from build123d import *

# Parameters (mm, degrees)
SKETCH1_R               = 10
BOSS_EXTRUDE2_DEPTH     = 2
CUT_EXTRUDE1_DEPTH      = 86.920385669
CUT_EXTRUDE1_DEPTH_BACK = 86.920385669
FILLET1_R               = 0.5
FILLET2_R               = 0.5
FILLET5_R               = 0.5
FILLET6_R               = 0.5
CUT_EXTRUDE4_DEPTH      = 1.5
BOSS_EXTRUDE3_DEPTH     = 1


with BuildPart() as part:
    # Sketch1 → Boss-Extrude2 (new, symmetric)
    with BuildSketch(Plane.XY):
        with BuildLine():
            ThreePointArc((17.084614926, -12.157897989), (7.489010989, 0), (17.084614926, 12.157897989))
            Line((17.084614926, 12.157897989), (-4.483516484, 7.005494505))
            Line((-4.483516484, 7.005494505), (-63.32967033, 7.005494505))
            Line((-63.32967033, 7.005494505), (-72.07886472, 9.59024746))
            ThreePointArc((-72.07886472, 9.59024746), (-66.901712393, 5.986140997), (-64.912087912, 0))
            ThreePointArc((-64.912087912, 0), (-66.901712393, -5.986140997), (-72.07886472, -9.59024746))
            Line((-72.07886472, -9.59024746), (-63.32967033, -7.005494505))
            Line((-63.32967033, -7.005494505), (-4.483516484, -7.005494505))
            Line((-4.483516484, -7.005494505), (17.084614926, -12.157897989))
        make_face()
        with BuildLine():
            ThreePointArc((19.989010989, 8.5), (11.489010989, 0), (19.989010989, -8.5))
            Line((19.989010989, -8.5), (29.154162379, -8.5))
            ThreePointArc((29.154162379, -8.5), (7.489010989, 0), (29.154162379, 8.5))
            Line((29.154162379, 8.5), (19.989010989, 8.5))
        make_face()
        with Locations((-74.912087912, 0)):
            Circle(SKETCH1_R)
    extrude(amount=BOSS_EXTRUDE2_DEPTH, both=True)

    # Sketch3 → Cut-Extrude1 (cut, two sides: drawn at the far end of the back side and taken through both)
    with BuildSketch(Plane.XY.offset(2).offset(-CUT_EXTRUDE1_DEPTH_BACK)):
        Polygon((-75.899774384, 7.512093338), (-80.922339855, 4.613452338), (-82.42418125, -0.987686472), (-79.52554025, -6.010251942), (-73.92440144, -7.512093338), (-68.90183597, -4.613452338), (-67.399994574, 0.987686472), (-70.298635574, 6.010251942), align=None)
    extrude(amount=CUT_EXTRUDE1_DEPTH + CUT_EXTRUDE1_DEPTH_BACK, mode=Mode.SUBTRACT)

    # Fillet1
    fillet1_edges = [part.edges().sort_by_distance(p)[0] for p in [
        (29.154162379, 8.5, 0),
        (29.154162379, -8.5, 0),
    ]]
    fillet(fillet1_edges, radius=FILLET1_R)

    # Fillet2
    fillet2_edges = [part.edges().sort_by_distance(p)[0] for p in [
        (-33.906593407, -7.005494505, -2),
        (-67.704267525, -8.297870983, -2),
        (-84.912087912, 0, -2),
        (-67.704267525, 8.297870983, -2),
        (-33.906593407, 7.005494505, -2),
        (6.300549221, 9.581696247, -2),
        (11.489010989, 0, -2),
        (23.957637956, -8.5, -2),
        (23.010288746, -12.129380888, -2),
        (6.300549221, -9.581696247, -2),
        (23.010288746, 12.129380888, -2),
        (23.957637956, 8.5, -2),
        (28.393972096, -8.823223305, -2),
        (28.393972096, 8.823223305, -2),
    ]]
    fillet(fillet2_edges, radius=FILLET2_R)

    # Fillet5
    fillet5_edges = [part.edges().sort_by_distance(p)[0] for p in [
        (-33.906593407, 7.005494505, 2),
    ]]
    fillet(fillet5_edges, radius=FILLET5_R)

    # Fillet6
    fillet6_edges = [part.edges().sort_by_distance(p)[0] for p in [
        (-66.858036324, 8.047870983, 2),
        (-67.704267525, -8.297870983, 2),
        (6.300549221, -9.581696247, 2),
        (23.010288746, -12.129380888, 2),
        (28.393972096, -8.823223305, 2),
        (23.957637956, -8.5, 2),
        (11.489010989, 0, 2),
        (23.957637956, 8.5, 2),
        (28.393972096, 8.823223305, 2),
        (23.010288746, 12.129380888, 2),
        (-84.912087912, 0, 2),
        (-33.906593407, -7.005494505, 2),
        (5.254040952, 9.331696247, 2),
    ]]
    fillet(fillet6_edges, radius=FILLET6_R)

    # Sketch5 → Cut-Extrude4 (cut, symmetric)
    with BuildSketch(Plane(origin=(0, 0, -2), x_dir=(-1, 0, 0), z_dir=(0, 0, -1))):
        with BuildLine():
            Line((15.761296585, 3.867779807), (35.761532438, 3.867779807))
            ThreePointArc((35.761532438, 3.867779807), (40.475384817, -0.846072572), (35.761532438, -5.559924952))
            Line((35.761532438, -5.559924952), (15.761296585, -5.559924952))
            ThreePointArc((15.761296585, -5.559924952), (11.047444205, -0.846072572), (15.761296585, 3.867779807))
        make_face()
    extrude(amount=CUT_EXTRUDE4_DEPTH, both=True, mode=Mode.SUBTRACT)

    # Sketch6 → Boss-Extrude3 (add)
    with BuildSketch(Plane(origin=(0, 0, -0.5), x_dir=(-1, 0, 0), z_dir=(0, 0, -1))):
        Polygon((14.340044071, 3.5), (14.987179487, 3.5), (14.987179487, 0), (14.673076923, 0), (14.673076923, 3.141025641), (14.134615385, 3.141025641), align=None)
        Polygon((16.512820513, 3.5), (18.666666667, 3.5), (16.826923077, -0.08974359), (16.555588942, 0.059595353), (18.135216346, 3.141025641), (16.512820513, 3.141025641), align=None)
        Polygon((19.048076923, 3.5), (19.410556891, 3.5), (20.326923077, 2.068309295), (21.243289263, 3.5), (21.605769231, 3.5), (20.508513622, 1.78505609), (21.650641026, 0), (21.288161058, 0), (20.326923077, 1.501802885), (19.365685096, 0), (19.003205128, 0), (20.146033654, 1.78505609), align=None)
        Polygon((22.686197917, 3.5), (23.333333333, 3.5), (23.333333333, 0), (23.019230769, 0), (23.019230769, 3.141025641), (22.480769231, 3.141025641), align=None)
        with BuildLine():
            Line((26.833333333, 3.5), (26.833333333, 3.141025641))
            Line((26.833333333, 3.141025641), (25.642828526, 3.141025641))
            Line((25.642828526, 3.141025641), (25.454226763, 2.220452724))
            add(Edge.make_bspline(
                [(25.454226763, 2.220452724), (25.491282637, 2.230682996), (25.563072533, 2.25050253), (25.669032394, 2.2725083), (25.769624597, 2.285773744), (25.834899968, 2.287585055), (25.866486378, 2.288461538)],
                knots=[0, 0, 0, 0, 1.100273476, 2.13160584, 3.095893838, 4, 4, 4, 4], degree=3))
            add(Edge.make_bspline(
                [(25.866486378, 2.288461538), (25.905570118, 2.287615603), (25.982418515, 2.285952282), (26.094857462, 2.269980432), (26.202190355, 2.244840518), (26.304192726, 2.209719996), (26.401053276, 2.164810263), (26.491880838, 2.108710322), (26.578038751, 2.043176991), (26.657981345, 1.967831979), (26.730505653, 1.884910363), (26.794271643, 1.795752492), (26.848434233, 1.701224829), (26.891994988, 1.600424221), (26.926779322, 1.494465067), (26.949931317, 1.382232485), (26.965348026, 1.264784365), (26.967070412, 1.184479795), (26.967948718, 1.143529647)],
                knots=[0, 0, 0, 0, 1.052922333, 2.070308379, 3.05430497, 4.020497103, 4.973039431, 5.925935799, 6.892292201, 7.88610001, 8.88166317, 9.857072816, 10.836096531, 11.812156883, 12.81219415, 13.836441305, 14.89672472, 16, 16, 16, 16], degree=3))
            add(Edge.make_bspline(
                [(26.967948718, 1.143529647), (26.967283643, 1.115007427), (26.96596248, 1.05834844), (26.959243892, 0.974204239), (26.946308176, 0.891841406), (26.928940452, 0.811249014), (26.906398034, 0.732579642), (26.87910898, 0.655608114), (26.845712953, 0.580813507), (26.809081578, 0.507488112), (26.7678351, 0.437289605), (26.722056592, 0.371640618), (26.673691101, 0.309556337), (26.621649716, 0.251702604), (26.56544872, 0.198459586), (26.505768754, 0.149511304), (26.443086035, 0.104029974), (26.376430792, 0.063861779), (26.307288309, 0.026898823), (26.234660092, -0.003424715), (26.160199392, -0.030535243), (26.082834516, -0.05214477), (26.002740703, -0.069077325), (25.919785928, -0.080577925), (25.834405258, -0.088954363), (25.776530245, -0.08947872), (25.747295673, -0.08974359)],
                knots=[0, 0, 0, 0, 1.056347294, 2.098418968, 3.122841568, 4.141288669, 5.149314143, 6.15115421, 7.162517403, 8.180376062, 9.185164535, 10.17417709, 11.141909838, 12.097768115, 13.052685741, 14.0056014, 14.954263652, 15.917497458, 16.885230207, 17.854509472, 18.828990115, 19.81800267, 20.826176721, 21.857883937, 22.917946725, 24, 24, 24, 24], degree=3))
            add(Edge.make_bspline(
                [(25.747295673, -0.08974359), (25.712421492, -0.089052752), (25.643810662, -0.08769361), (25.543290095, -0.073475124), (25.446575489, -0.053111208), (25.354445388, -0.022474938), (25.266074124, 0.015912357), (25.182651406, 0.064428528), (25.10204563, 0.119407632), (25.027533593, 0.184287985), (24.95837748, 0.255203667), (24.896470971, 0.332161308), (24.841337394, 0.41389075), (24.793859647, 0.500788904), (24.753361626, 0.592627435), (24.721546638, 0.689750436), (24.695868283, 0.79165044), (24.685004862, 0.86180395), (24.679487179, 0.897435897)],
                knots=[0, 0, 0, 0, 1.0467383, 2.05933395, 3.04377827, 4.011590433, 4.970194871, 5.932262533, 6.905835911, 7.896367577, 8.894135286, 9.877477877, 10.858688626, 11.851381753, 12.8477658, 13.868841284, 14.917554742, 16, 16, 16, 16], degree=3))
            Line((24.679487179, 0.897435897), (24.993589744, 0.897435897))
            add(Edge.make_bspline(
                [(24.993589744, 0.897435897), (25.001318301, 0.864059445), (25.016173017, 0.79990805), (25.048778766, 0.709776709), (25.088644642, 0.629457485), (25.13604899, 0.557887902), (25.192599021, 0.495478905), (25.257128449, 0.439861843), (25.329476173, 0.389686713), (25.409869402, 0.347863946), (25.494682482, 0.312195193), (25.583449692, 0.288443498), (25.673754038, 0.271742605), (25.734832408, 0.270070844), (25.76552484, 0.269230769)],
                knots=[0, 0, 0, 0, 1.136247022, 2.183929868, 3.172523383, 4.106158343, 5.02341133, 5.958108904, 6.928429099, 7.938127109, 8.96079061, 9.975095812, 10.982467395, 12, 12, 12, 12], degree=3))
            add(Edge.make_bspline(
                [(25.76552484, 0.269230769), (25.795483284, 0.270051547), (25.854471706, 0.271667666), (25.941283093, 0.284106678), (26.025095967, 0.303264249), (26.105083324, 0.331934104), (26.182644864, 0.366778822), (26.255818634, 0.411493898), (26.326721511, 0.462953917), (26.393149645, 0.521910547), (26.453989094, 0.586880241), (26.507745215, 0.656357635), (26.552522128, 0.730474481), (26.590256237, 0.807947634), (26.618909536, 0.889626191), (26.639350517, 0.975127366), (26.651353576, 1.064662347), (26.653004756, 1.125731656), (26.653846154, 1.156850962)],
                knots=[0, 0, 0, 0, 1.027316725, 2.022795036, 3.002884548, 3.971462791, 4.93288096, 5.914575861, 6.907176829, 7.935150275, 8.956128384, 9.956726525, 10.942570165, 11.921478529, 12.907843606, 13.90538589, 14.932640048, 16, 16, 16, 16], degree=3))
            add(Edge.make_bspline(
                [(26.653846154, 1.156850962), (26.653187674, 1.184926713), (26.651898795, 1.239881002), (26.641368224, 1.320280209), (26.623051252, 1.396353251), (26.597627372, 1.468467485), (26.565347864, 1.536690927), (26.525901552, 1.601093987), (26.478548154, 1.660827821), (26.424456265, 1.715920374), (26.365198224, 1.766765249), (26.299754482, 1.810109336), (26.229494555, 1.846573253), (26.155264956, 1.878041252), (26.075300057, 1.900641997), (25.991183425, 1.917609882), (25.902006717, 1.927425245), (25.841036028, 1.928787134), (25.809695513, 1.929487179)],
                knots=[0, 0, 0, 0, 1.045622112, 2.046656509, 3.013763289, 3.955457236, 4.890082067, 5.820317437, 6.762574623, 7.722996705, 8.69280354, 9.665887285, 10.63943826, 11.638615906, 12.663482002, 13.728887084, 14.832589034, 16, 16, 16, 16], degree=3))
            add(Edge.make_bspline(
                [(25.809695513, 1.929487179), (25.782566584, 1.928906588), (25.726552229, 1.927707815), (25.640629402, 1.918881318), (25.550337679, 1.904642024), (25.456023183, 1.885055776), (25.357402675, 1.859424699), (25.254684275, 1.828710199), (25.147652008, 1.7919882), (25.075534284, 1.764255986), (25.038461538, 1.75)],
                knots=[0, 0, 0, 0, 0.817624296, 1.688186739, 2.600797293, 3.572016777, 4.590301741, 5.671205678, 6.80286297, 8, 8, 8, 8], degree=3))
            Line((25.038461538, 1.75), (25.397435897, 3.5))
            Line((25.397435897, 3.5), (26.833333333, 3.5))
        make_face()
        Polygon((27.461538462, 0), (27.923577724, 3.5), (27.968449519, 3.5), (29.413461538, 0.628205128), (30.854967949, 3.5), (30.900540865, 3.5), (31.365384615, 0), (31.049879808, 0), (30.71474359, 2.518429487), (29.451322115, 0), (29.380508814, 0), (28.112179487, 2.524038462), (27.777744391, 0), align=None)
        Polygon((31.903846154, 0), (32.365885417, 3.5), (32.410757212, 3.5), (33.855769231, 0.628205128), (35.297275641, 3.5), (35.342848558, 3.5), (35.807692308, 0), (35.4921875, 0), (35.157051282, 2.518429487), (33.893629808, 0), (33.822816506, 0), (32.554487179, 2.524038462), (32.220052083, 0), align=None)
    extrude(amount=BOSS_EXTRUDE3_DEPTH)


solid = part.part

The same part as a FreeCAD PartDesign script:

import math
import FreeCAD as App
import Part
import Sketcher

V = App.Vector


def edges_at(feature, points):
    """Names of the edges that pass closest to the given points."""
    edges = feature.Shape.Edges
    near = lambda p: min(range(len(edges)), key=lambda i: edges[i].distToShape(Part.Vertex(*p))[0])
    return sorted({f"Edge{near(p) + 1}" for p in points})


def add_polygon(sketch, points):
    """Adds a closed chain of lines whose ends are joined by coincident constraints."""
    first, n = sketch.GeometryCount, len(points)
    for a, b in zip(points, points[1:] + points[:1]):
        sketch.addGeometry(Part.LineSegment(App.Vector(*a, 0), App.Vector(*b, 0)), False)
    for i in range(n):
        sketch.addConstraint(Sketcher.Constraint("Coincident", first + i, 2, first + (i + 1) % n, 1))

doc = App.newDocument("Part")
params = doc.addObject("Spreadsheet::Sheet", "Params")
for row, (alias, value) in enumerate([
    ("sketch1_radius", "10 mm"),
    ("sketch1_radius2", "12.5 mm"),
    ("sketch1_radius3", "8.5 mm"),
    ("pad1_length", "4 mm"),
    ("fillet_radius", "0.5 mm"),
    ("fillet2_radius", "0.5 mm"),
    ("fillet3_radius", "0.5 mm"),
    ("fillet4_radius", "0.5 mm"),
    ("pocket2_length", "3 mm"),
    ("sketch4_height", "3.5 mm"),
    ("sketch4_height2", "3.5 mm"),
    ("pad2_length", "1 mm"),
], start=1):
    params.set(f"A{row}", alias)
    params.set(f"B{row}", "=" + value)
    params.setAlias(f"B{row}", alias)

body = doc.addObject("PartDesign::Body", "Body")

sketch1 = body.newObject("Sketcher::SketchObject", "Sketch")
sketch1.AttachmentSupport = (doc.getObject("XY_Plane"), [""])
sketch1.MapMode = "FlatFace"
sketch1.addGeometry([
    Part.LineSegment(V(17, 12, 0), V(-4, 7, 0)),
    Part.LineSegment(V(-4, 7, 0), V(-63, 7, 0)),
    Part.LineSegment(V(-63, 7, 0), V(-72, 10, 0)),
    Part.ArcOfCircle(Part.Circle(V(-75, 0, 0), V(0, 0, 1), 10), math.radians(74), math.radians(286)),
    Part.LineSegment(V(-72, -10, 0), V(-63, -7, 0)),
    Part.LineSegment(V(-63, -7, 0), V(-4, -7, 0)),
    Part.LineSegment(V(-4, -7, 0), V(17, -12, 0)),
    Part.ArcOfCircle(Part.Circle(V(20, 0, 0), V(0, 0, 1), 12), math.radians(-103), math.radians(-43)),
    Part.LineSegment(V(29, -8, 0), V(20, -8, 0)),
    Part.ArcOfCircle(Part.Circle(V(20, 0, 0), V(0, 0, 1), 8), math.radians(90), math.radians(270)),
    Part.LineSegment(V(20, 8, 0), V(29, 8, 0)),
    Part.ArcOfCircle(Part.Circle(V(20, 0, 0), V(0, 0, 1), 12), math.radians(43), math.radians(103)),
], False)
sketch1.addConstraint([
    Sketcher.Constraint("Coincident", 0, 2, 1, 1),
    Sketcher.Constraint("Coincident", 1, 2, 2, 1),
    Sketcher.Constraint("Tangent", 2, 2, 3, 1),
    Sketcher.Constraint("Tangent", 3, 2, 4, 1),
    Sketcher.Constraint("Coincident", 4, 2, 5, 1),
    Sketcher.Constraint("Coincident", 5, 2, 6, 1),
    Sketcher.Constraint("Tangent", 6, 2, 7, 1),
    Sketcher.Constraint("Coincident", 7, 2, 8, 1),
    Sketcher.Constraint("Tangent", 8, 2, 9, 2),
    Sketcher.Constraint("Tangent", 9, 1, 10, 1),
    Sketcher.Constraint("Coincident", 10, 2, 11, 1),
    Sketcher.Constraint("Tangent", 11, 2, 0, 1),
    Sketcher.Constraint("Horizontal", 1),
    Sketcher.Constraint("Horizontal", 5),
    Sketcher.Constraint("Horizontal", 8),
    Sketcher.Constraint("Horizontal", 10),
    Sketcher.Constraint("Coincident", 9, 3, 7, 3),
    Sketcher.Constraint("Coincident", 11, 3, 7, 3),
    Sketcher.Constraint("Equal", 7, 11),
    Sketcher.Constraint("Symmetric", 2, 2, 3, 2, -1),
    Sketcher.Constraint("Symmetric", 0, 2, 5, 2, -1),
    Sketcher.Constraint("PointOnObject", 7, 3, -1),
    Sketcher.Constraint("Radius", 3, 10.0),
    Sketcher.Constraint("Radius", 7, 12.5),
    Sketcher.Constraint("Radius", 9, 8.5),
    Sketcher.Constraint("DistanceX", 3, 3, 7, 3, 94.901099),
    Sketcher.Constraint("Distance", 0, 22.175021),
    Sketcher.Constraint("DistanceX", 1, 2, 1, 1, 58.846154),
    Sketcher.Constraint("DistanceX", -1, 1, 7, 3, 19.989011),
    Sketcher.Constraint("DistanceX", 1, 2, -1, 1, 63.32967),
])
sketch1.setExpression("Constraints[22]", "Params.sketch1_radius")
sketch1.setExpression("Constraints[23]", "Params.sketch1_radius2")
sketch1.setExpression("Constraints[24]", "Params.sketch1_radius3")
pad1 = body.newObject("PartDesign::Pad", "Pad")
pad1.Profile = sketch1
pad1.setExpression("Length", "Params.pad1_length")
pad1.Midplane = True

sketch2 = body.newObject("Sketcher::SketchObject", "Sketch001")
sketch2.AttachmentSupport = (doc.getObject("XY_Plane"), [""])
sketch2.MapMode = "FlatFace"
sketch2.AttachmentOffset = App.Placement(V(0, 0, 2), App.Rotation())
add_polygon(sketch2, [(-76, 8), (-81, 5), (-82, -1), (-80, -6), (-74, -8), (-69, -5), (-67, 1), (-70, 6)])
sketch2.addConstraint([
    Sketcher.Constraint("Perpendicular", 0, 2),
    Sketcher.Constraint("Perpendicular", 1, 3),
    Sketcher.Constraint("Perpendicular", 2, 4),
    Sketcher.Constraint("Perpendicular", 3, 5),
    Sketcher.Constraint("Perpendicular", 4, 6),
    Sketcher.Constraint("Perpendicular", 5, 7),
    Sketcher.Constraint("Equal", 0, 1),
    Sketcher.Constraint("Equal", 1, 2),
    Sketcher.Constraint("Equal", 2, 3),
    Sketcher.Constraint("Equal", 3, 4),
    Sketcher.Constraint("Equal", 4, 5),
    Sketcher.Constraint("DistanceX", 3, 2, -1, 1, 73.924401),
    Sketcher.Constraint("DistanceX", 0, 2, 2, 2, 1.3968),
    Sketcher.Constraint("Distance", 0, 5.79899),
    Sketcher.Constraint("DistanceX", 0, 2, -1, 1, 80.92234),
    Sketcher.Constraint("DistanceY", 2, 2, -1, 1, 6.010252),
])
pocket1 = body.newObject("PartDesign::Pocket", "Pocket")
pocket1.Profile = sketch2
pocket1.Type = "ThroughAll"
pocket1.Midplane = True
doc.recompute()

fillet = body.newObject("PartDesign::Fillet", "Fillet")
fillet.Base = (pocket1, edges_at(pocket1, [(29.154, 8.5, 0), (29.154, -8.5, 0)]))
fillet.setExpression("Radius", "Params.fillet_radius")
doc.recompute()

fillet2 = body.newObject("PartDesign::Fillet", "Fillet001")
fillet2.Base = (fillet, edges_at(fillet, [
    (-33.907, -7.005, -2),
    (-67.704, -8.298, -2),
    (-84.912, 0, -2),
    (-67.704, 8.298, -2),
    (-33.907, 7.005, -2),
    (6.301, 9.582, -2),
    (11.489, 0, -2),
    (23.958, -8.5, -2),
    (23.01, -12.129, -2),
    (6.301, -9.582, -2),
    (23.01, 12.129, -2),
    (23.958, 8.5, -2),
    (28.394, -8.823, -2),
    (28.394, 8.823, -2),
]))
fillet2.setExpression("Radius", "Params.fillet2_radius")
doc.recompute()

fillet3 = body.newObject("PartDesign::Fillet", "Fillet002")
fillet3.Base = (fillet2, edges_at(fillet2, [(-33.907, 7.005, 2)]))
fillet3.setExpression("Radius", "Params.fillet3_radius")
doc.recompute()

fillet4 = body.newObject("PartDesign::Fillet", "Fillet003")
fillet4.Base = (fillet3, edges_at(fillet3, [
    (-66.858, 8.048, 2),
    (-67.704, -8.298, 2),
    (6.301, -9.582, 2),
    (23.01, -12.129, 2),
    (28.394, -8.823, 2),
    (23.958, -8.5, 2),
    (11.489, 0, 2),
    (23.958, 8.5, 2),
    (28.394, 8.823, 2),
    (23.01, 12.129, 2),
    (-84.912, 0, 2),
    (-33.907, -7.005, 2),
    (5.254, 9.332, 2),
]))
fillet4.setExpression("Radius", "Params.fillet4_radius")

sketch3 = body.newObject("Sketcher::SketchObject", "Sketch002")
sketch3.AttachmentSupport = (doc.getObject("XY_Plane"), [""])
sketch3.MapMode = "FlatFace"
sketch3.AttachmentOffset = App.Placement(V(0, 0, -2), App.Rotation())
sketch3.addGeometry([
    Part.LineSegment(V(-35.8, 3.9, 0), V(-15.8, 3.9, 0)),
    Part.ArcOfCircle(Part.Circle(V(-15.8, -0.8, 0), V(0, 0, 1), 4.7), math.radians(-90), math.radians(90)),
    Part.LineSegment(V(-15.8, -5.6, 0), V(-35.8, -5.6, 0)),
    Part.ArcOfCircle(Part.Circle(V(-35.8, -0.8, 0), V(0, 0, 1), 4.7), math.radians(90), math.radians(270)),
], False)
sketch3.addConstraint([
    Sketcher.Constraint("Tangent", 0, 2, 1, 2),
    Sketcher.Constraint("Tangent", 1, 1, 2, 1),
    Sketcher.Constraint("Tangent", 2, 2, 3, 2),
    Sketcher.Constraint("Tangent", 3, 1, 0, 1),
    Sketcher.Constraint("Horizontal", 0),
    Sketcher.Constraint("Horizontal", 2),
    Sketcher.Constraint("Radius", 1, 4.713852),
    Sketcher.Constraint("DistanceX", 0, 1, 0, 2, 20.000236),
    Sketcher.Constraint("DistanceY", -1, 1, 0, 2, 3.86778),
    Sketcher.Constraint("DistanceX", 1, 3, -1, 1, 15.761297),
])
pocket2 = body.newObject("PartDesign::Pocket", "Pocket001")
pocket2.Profile = sketch3
pocket2.setExpression("Length", "Params.pocket2_length")
pocket2.Midplane = True

sketch4 = body.newObject("Sketcher::SketchObject", "Sketch003")
sketch4.AttachmentSupport = (doc.getObject("XY_Plane"), [""])
sketch4.MapMode = "FlatFace"
sketch4.AttachmentOffset = App.Placement(V(0, 0, -0.5), App.Rotation())
add_polygon(sketch4, [(-14.987179, 3.5), (-14.340044, 3.5), (-14.134615, 3.141026), (-14.673077, 3.141026), (-14.673077, 0), (-14.987179, 0)])
add_polygon(sketch4, [(-18.666667, 3.5), (-16.512821, 3.5), (-16.512821, 3.141026), (-18.135216, 3.141026), (-16.555589, 0.059595), (-16.826923, -0.089744)])
add_polygon(sketch4, [(-19.410557, 3.5), (-19.048077, 3.5), (-20.146034, 1.785056), (-19.003205, 0), (-19.365685, 0), (-20.326923, 1.501803), (-21.288161, 0), (-21.650641, 0), (-20.508514, 1.785056), (-21.605769, 3.5), (-21.243289, 3.5), (-20.326923, 2.068309)])
add_polygon(sketch4, [(-23.333333, 3.5), (-22.686198, 3.5), (-22.480769, 3.141026), (-23.019231, 3.141026), (-23.019231, 0), (-23.333333, 0)])
sketch4.addGeometry(Part.LineSegment(V(-26.833333, 3.141026, 0), V(-26.833333, 3.5, 0)), False)
sketch4.addGeometry(Part.LineSegment(V(-26.833333, 3.5, 0), V(-25.397436, 3.5, 0)), False)
sketch4.addGeometry(Part.LineSegment(V(-25.397436, 3.5, 0), V(-25.038462, 1.75, 0)), False)
sketch4.addGeometry(Part.BSplineCurve([V(-25.809696, 1.929487, 0), V(-25.782567, 1.928907, 0), V(-25.726552, 1.927708, 0), V(-25.640629, 1.918881, 0), V(-25.550338, 1.904642, 0), V(-25.456023, 1.885056, 0), V(-25.357403, 1.859425, 0), V(-25.254684, 1.82871, 0), V(-25.147652, 1.791988, 0), V(-25.075534, 1.764256, 0), V(-25.038462, 1.75, 0)], [4, 1, 1, 1, 1, 1, 1, 1, 4], [0, 0.817624296, 1.688186739, 2.600797293, 3.572016777, 4.590301741, 5.671205678, 6.80286297, 8], False, 3, [1, 1, 1, 1, 1, 1, 1, 1, 1, 1, 1], False), False)
sketch4.addGeometry(Part.BSplineCurve([V(-26.653846, 1.156851, 0), V(-26.653188, 1.184927, 0), V(-26.651899, 1.239881, 0), V(-26.641368, 1.32028, 0), V(-26.623051, 1.396353, 0), V(-26.597627, 1.468467, 0), V(-26.565348, 1.536691, 0), V(-26.525902, 1.601094, 0), V(-26.478548, 1.660828, 0), V(-26.424456, 1.71592, 0), V(-26.365198, 1.766765, 0), V(-26.299754, 1.810109, 0), V(-26.229495, 1.846573, 0), V(-26.155265, 1.878041, 0), V(-26.0753, 1.900642, 0), V(-25.991183, 1.91761, 0), V(-25.902007, 1.927425, 0), V(-25.841036, 1.928787, 0), V(-25.809696, 1.929487, 0)], [4, 1, 1, 1, 1, 1, 1, 1, 1, 1, 1, 1, 1, 1, 1, 1, 4], [0, 1.045622112, 2.046656509, 3.013763289, 3.955457236, 4.890082067, 5.820317437, 6.762574623, 7.722996705, 8.69280354, 9.665887285, 10.63943826, 11.638615906, 12.663482002, 13.728887084, 14.832589034, 16], False, 3, [1, 1, 1, 1, 1, 1, 1, 1, 1, 1, 1, 1, 1, 1, 1, 1, 1, 1, 1], False), False)
sketch4.addGeometry(Part.BSplineCurve([V(-25.765525, 0.269231, 0), V(-25.795483, 0.270052, 0), V(-25.854472, 0.271668, 0), V(-25.941283, 0.284107, 0), V(-26.025096, 0.303264, 0), V(-26.105083, 0.331934, 0), V(-26.182645, 0.366779, 0), V(-26.255819, 0.411494, 0), V(-26.326722, 0.462954, 0), V(-26.39315, 0.521911, 0), V(-26.453989, 0.58688, 0), V(-26.507745, 0.656358, 0), V(-26.552522, 0.730474, 0), V(-26.590256, 0.807948, 0), V(-26.61891, 0.889626, 0), V(-26.639351, 0.975127, 0), V(-26.651354, 1.064662, 0), V(-26.653005, 1.125732, 0), V(-26.653846, 1.156851, 0)], [4, 1, 1, 1, 1, 1, 1, 1, 1, 1, 1, 1, 1, 1, 1, 1, 4], [0, 1.027316725, 2.022795036, 3.002884548, 3.971462791, 4.93288096, 5.914575861, 6.907176829, 7.935150275, 8.956128384, 9.956726525, 10.942570165, 11.921478529, 12.907843606, 13.90538589, 14.932640048, 16], False, 3, [1, 1, 1, 1, 1, 1, 1, 1, 1, 1, 1, 1, 1, 1, 1, 1, 1, 1, 1], False), False)
sketch4.addGeometry(Part.BSplineCurve([V(-24.99359, 0.897436, 0), V(-25.001318, 0.864059, 0), V(-25.016173, 0.799908, 0), V(-25.048779, 0.709777, 0), V(-25.088645, 0.629457, 0), V(-25.136049, 0.557888, 0), V(-25.192599, 0.495479, 0), V(-25.257128, 0.439862, 0), V(-25.329476, 0.389687, 0), V(-25.409869, 0.347864, 0), V(-25.494682, 0.312195, 0), V(-25.58345, 0.288443, 0), V(-25.673754, 0.271743, 0), V(-25.734832, 0.270071, 0), V(-25.765525, 0.269231, 0)], [4, 1, 1, 1, 1, 1, 1, 1, 1, 1, 1, 1, 4], [0, 1.136247022, 2.183929868, 3.172523383, 4.106158343, 5.02341133, 5.958108904, 6.928429099, 7.938127109, 8.96079061, 9.975095812, 10.982467395, 12], False, 3, [1, 1, 1, 1, 1, 1, 1, 1, 1, 1, 1, 1, 1, 1, 1], False), False)
sketch4.addGeometry(Part.LineSegment(V(-24.99359, 0.897436, 0), V(-24.679487, 0.897436, 0)), False)
sketch4.addGeometry(Part.BSplineCurve([V(-25.747296, -0.089744, 0), V(-25.712421, -0.089053, 0), V(-25.643811, -0.087694, 0), V(-25.54329, -0.073475, 0), V(-25.446575, -0.053111, 0), V(-25.354445, -0.022475, 0), V(-25.266074, 0.015912, 0), V(-25.182651, 0.064429, 0), V(-25.102046, 0.119408, 0), V(-25.027534, 0.184288, 0), V(-24.958377, 0.255204, 0), V(-24.896471, 0.332161, 0), V(-24.841337, 0.413891, 0), V(-24.79386, 0.500789, 0), V(-24.753362, 0.592627, 0), V(-24.721547, 0.68975, 0), V(-24.695868, 0.79165, 0), V(-24.685005, 0.861804, 0), V(-24.679487, 0.897436, 0)], [4, 1, 1, 1, 1, 1, 1, 1, 1, 1, 1, 1, 1, 1, 1, 1, 4], [0, 1.0467383, 2.05933395, 3.04377827, 4.011590433, 4.970194871, 5.932262533, 6.905835911, 7.896367577, 8.894135286, 9.877477877, 10.858688626, 11.851381753, 12.8477658, 13.868841284, 14.917554742, 16], False, 3, [1, 1, 1, 1, 1, 1, 1, 1, 1, 1, 1, 1, 1, 1, 1, 1, 1, 1, 1], False), False)
sketch4.addGeometry(Part.BSplineCurve([V(-26.967949, 1.14353, 0), V(-26.967284, 1.115007, 0), V(-26.965962, 1.058348, 0), V(-26.959244, 0.974204, 0), V(-26.946308, 0.891841, 0), V(-26.92894, 0.811249, 0), V(-26.906398, 0.73258, 0), V(-26.879109, 0.655608, 0), V(-26.845713, 0.580814, 0), V(-26.809082, 0.507488, 0), V(-26.767835, 0.43729, 0), V(-26.722057, 0.371641, 0), V(-26.673691, 0.309556, 0), V(-26.62165, 0.251703, 0), V(-26.565449, 0.19846, 0), V(-26.505769, 0.149511, 0), V(-26.443086, 0.10403, 0), V(-26.376431, 0.063862, 0), V(-26.307288, 0.026899, 0), V(-26.23466, -0.003425, 0), V(-26.160199, -0.030535, 0), V(-26.082835, -0.052145, 0), V(-26.002741, -0.069077, 0), V(-25.919786, -0.080578, 0), V(-25.834405, -0.088954, 0), V(-25.77653, -0.089479, 0), V(-25.747296, -0.089744, 0)], [4, 1, 1, 1, 1, 1, 1, 1, 1, 1, 1, 1, 1, 1, 1, 1, 1, 1, 1, 1, 1, 1, 1, 1, 4], [0, 1.056347294, 2.098418968, 3.122841568, 4.141288669, 5.149314143, 6.15115421, 7.162517403, 8.180376062, 9.185164535, 10.17417709, 11.141909838, 12.097768115, 13.052685741, 14.0056014, 14.954263652, 15.917497458, 16.885230207, 17.854509472, 18.828990115, 19.81800267, 20.826176721, 21.857883937, 22.917946725, 24], False, 3, [1, 1, 1, 1, 1, 1, 1, 1, 1, 1, 1, 1, 1, 1, 1, 1, 1, 1, 1, 1, 1, 1, 1, 1, 1, 1, 1], False), False)
sketch4.addGeometry(Part.BSplineCurve([V(-25.866486, 2.288462, 0), V(-25.90557, 2.287616, 0), V(-25.982419, 2.285952, 0), V(-26.094857, 2.26998, 0), V(-26.20219, 2.244841, 0), V(-26.304193, 2.20972, 0), V(-26.401053, 2.16481, 0), V(-26.491881, 2.10871, 0), V(-26.578039, 2.043177, 0), V(-26.657981, 1.967832, 0), V(-26.730506, 1.88491, 0), V(-26.794272, 1.795752, 0), V(-26.848434, 1.701225, 0), V(-26.891995, 1.600424, 0), V(-26.926779, 1.494465, 0), V(-26.949931, 1.382232, 0), V(-26.965348, 1.264784, 0), V(-26.96707, 1.18448, 0), V(-26.967949, 1.14353, 0)], [4, 1, 1, 1, 1, 1, 1, 1, 1, 1, 1, 1, 1, 1, 1, 1, 4], [0, 1.052922333, 2.070308379, 3.05430497, 4.020497103, 4.973039431, 5.925935799, 6.892292201, 7.88610001, 8.88166317, 9.857072816, 10.836096531, 11.812156883, 12.81219415, 13.836441305, 14.89672472, 16], False, 3, [1, 1, 1, 1, 1, 1, 1, 1, 1, 1, 1, 1, 1, 1, 1, 1, 1, 1, 1], False), False)
sketch4.addGeometry(Part.BSplineCurve([V(-25.454227, 2.220453, 0), V(-25.491283, 2.230683, 0), V(-25.563073, 2.250503, 0), V(-25.669032, 2.272508, 0), V(-25.769625, 2.285774, 0), V(-25.8349, 2.287585, 0), V(-25.866486, 2.288462, 0)], [4, 1, 1, 1, 4], [0, 1.100273476, 2.13160584, 3.095893838, 4], False, 3, [1, 1, 1, 1, 1, 1, 1], False), False)
sketch4.addGeometry(Part.LineSegment(V(-25.454227, 2.220453, 0), V(-25.642829, 3.141026, 0)), False)
sketch4.addGeometry(Part.LineSegment(V(-25.642829, 3.141026, 0), V(-26.833333, 3.141026, 0)), False)
add_polygon(sketch4, [(-27.923578, 3.5), (-27.461538, 0), (-27.777744, 0), (-28.112179, 2.524038), (-29.380509, 0), (-29.451322, 0), (-30.714744, 2.518429), (-31.04988, 0), (-31.365385, 0), (-30.900541, 3.5), (-30.854968, 3.5), (-29.413462, 0.628205), (-27.96845, 3.5)])
add_polygon(sketch4, [(-32.365885, 3.5), (-31.903846, 0), (-32.220052, 0), (-32.554487, 2.524038), (-33.822817, 0), (-33.89363, 0), (-35.157051, 2.518429), (-35.492188, 0), (-35.807692, 0), (-35.342849, 3.5), (-35.297276, 3.5), (-33.855769, 0.628205), (-32.410757, 3.5)])
sketch4.addConstraint([
    Sketcher.Constraint("Block", 33),
    Sketcher.Constraint("Block", 34),
    Sketcher.Constraint("Block", 35),
    Sketcher.Constraint("Block", 36),
    Sketcher.Constraint("Block", 38),
    Sketcher.Constraint("Block", 39),
    Sketcher.Constraint("Block", 40),
    Sketcher.Constraint("Block", 41),
    Sketcher.Constraint("Coincident", 30, 2, 31, 1),
    Sketcher.Constraint("Coincident", 31, 2, 32, 1),
    Sketcher.Constraint("Coincident", 32, 2, 33, 2),
    Sketcher.Constraint("Coincident", 36, 1, 37, 1),
    Sketcher.Constraint("Coincident", 37, 2, 38, 2),
    Sketcher.Constraint("Coincident", 41, 1, 42, 1),
    Sketcher.Constraint("Coincident", 42, 2, 43, 1),
    Sketcher.Constraint("Coincident", 43, 2, 30, 1),
    Sketcher.Constraint("Horizontal", 0),
    Sketcher.Constraint("Horizontal", 2),
    Sketcher.Constraint("Vertical", 3),
    Sketcher.Constraint("Horizontal", 4),
    Sketcher.Constraint("Vertical", 5),
    Sketcher.Constraint("Horizontal", 6),
    Sketcher.Constraint("Vertical", 7),
    Sketcher.Constraint("Horizontal", 8),
    Sketcher.Constraint("Horizontal", 12),
    Sketcher.Constraint("Horizontal", 15),
    Sketcher.Constraint("Horizontal", 18),
    Sketcher.Constraint("Horizontal", 21),
    Sketcher.Constraint("Horizontal", 24),
    Sketcher.Constraint("Horizontal", 26),
    Sketcher.Constraint("Vertical", 27),
    Sketcher.Constraint("Horizontal", 28),
    Sketcher.Constraint("Vertical", 29),
    Sketcher.Constraint("Vertical", 30),
    Sketcher.Constraint("Horizontal", 31),
    Sketcher.Constraint("Horizontal", 43),
    Sketcher.Constraint("Horizontal", 45),
    Sketcher.Constraint("Horizontal", 48),
    Sketcher.Constraint("Horizontal", 51),
    Sketcher.Constraint("Horizontal", 53),
    Sketcher.Constraint("Horizontal", 56),
    Sketcher.Constraint("Horizontal", 58),
    Sketcher.Constraint("Horizontal", 61),
    Sketcher.Constraint("Horizontal", 64),
    Sketcher.Constraint("Horizontal", 66),
    Sketcher.Constraint("Horizontal", 69),
    Sketcher.Constraint("PointOnObject", 3, 2, -1),
    Sketcher.Constraint("PointOnObject", 14, 2, -1),
    Sketcher.Constraint("PointOnObject", 17, 2, -1),
    Sketcher.Constraint("PointOnObject", 27, 2, -1),
    Sketcher.Constraint("PointOnObject", 44, 2, -1),
    Sketcher.Constraint("PointOnObject", 47, 2, -1),
    Sketcher.Constraint("PointOnObject", 50, 2, -1),
    Sketcher.Constraint("PointOnObject", 57, 2, -1),
    Sketcher.Constraint("PointOnObject", 60, 2, -1),
    Sketcher.Constraint("PointOnObject", 63, 2, -1),
    Sketcher.Constraint("DistanceY", 5, 1, 5, 2, 3.5),
    Sketcher.Constraint("DistanceY", 29, 1, 29, 2, 3.5),
    Sketcher.Constraint("DistanceY", -1, 1, 6, 2, 3.5),
    Sketcher.Constraint("DistanceY", -1, 1, 12, 2, 3.5),
    Sketcher.Constraint("DistanceY", -1, 1, 20, 2, 3.5),
    Sketcher.Constraint("DistanceY", -1, 1, 30, 2, 3.5),
    Sketcher.Constraint("DistanceY", -1, 1, 52, 2, 3.5),
    Sketcher.Constraint("DistanceY", -1, 1, 55, 2, 3.5),
    Sketcher.Constraint("DistanceY", -1, 1, 65, 2, 3.5),
    Sketcher.Constraint("DistanceY", -1, 1, 68, 2, 3.5),
    Sketcher.Constraint("Distance", 1, 0.413598),
    Sketcher.Constraint("Distance", 25, 0.413598),
    Sketcher.Constraint("Distance", 46, 2.546098),
    Sketcher.Constraint("Distance", 59, 2.546098),
    Sketcher.Constraint("DistanceX", 2, 2, 2, 1, 0.538462),
    Sketcher.Constraint("DistanceX", 12, 1, 12, 2, 0.36248),
    Sketcher.Constraint("DistanceX", 15, 2, 15, 1, 0.36248),
    Sketcher.Constraint("DistanceX", 18, 2, 18, 1, 0.36248),
    Sketcher.Constraint("DistanceX", 21, 1, 21, 2, 0.36248),
    Sketcher.Constraint("DistanceX", 26, 2, 26, 1, 0.538462),
    Sketcher.Constraint("DistanceX", 56, 1, 56, 2, 0.044872),
    Sketcher.Constraint("DistanceX", 69, 1, 69, 2, 0.044872),
    Sketcher.Constraint("Distance", 9, 3.462721),
    Sketcher.Constraint("Distance", 19, 2.11917),
    Sketcher.Constraint("Distance", 32, 1.786439),
    Sketcher.Constraint("Distance", 47, 2.824788),
    Sketcher.Constraint("Distance", 50, 2.540631),
    Sketcher.Constraint("Distance", 55, 3.214851),
    Sketcher.Constraint("Distance", 60, 2.824788),
    Sketcher.Constraint("Distance", 63, 2.540631),
    Sketcher.Constraint("Distance", 68, 3.214851),
    Sketcher.Constraint("DistanceX", 0, 1, 0, 2, 0.647135),
    Sketcher.Constraint("DistanceX", 4, 2, 4, 1, 0.314103),
    Sketcher.Constraint("DistanceX", 6, 1, 6, 2, 2.153846),
    Sketcher.Constraint("DistanceX", 8, 2, 8, 1, 1.622396),
    Sketcher.Constraint("DistanceX", 24, 1, 24, 2, 0.647135),
    Sketcher.Constraint("DistanceX", 28, 2, 28, 1, 0.314103),
    Sketcher.Constraint("DistanceX", 31, 1, 31, 2, 1.435897),
    Sketcher.Constraint("DistanceX", 43, 2, 43, 1, 1.190505),
    Sketcher.Constraint("DistanceX", 45, 2, 45, 1, 0.316206),
    Sketcher.Constraint("DistanceX", 48, 2, 48, 1, 0.070813),
    Sketcher.Constraint("DistanceX", 51, 2, 51, 1, 0.315505),
    Sketcher.Constraint("DistanceX", 53, 1, 53, 2, 0.045573),
    Sketcher.Constraint("DistanceX", 58, 2, 58, 1, 0.316206),
    Sketcher.Constraint("DistanceX", 61, 2, 61, 1, 0.070813),
    Sketcher.Constraint("DistanceX", 64, 2, 64, 1, 0.315505),
    Sketcher.Constraint("DistanceX", 66, 1, 66, 2, 0.045573),
    Sketcher.Constraint("DistanceY", 7, 2, 7, 1, 0.358974),
    Sketcher.Constraint("DistanceY", 30, 1, 30, 2, 0.358974),
    Sketcher.Constraint("DistanceX", 4, 2, -1, 1, 14.987179),
    Sketcher.Constraint("DistanceX", 6, 2, -1, 1, 16.512821),
    Sketcher.Constraint("DistanceX", 9, 2, -1, 1, 16.555589),
    Sketcher.Constraint("DistanceX", 17, 2, -1, 1, 21.288161),
    Sketcher.Constraint("DistanceX", 20, 2, -1, 1, 21.605769),
    Sketcher.Constraint("DistanceY", -1, 1, 22, 2, 2.068309),
    Sketcher.Constraint("DistanceX", 25, 2, -1, 1, 22.480769),
    Sketcher.Constraint("DistanceX", 44, 2, -1, 1, 27.461538),
    Sketcher.Constraint("DistanceX", 46, 2, -1, 1, 28.112179),
    Sketcher.Constraint("DistanceY", -1, 1, 49, 2, 2.518429),
    Sketcher.Constraint("DistanceX", 50, 2, -1, 1, 31.04988),
    Sketcher.Constraint("DistanceX", 52, 2, -1, 1, 30.900541),
    Sketcher.Constraint("DistanceX", 54, 2, -1, 1, 29.413462),
    Sketcher.Constraint("DistanceX", 55, 2, -1, 1, 27.96845),
    Sketcher.Constraint("DistanceY", -1, 1, 59, 2, 2.524038),
    Sketcher.Constraint("DistanceX", 61, 2, -1, 1, 33.89363),
    Sketcher.Constraint("DistanceX", 62, 2, -1, 1, 35.157051),
    Sketcher.Constraint("DistanceY", -1, 1, 62, 2, 2.518429),
    Sketcher.Constraint("DistanceX", 65, 2, -1, 1, 35.342849),
    Sketcher.Constraint("DistanceX", 67, 2, -1, 1, 33.855769),
    Sketcher.Constraint("Distance", 10, 0.309717),
    Sketcher.Constraint("Distance", 11, 4.033722),
    Sketcher.Constraint("Distance", 13, 2.036306),
    Sketcher.Constraint("Distance", 14, 2.119548),
    Sketcher.Constraint("Distance", 16, 1.783085),
    Sketcher.Constraint("Distance", 17, 1.783085),
    Sketcher.Constraint("Distance", 20, 2.035928),
    Sketcher.Constraint("Distance", 22, 1.699843),
    Sketcher.Constraint("Distance", 23, 1.699843),
    Sketcher.Constraint("Distance", 57, 3.530365),
    Sketcher.Constraint("DistanceX", 13, 2, -1, 1, 20.146034),
])
sketch4.setExpression("Constraints[112]", "Params.sketch4_height")
sketch4.setExpression("Constraints[113]", "Params.sketch4_height2")
pad2 = body.newObject("PartDesign::Pad", "Pad001")
pad2.Profile = sketch4
pad2.setExpression("Length", "Params.pad2_length")
pad2.Reversed = True

doc.recompute()
